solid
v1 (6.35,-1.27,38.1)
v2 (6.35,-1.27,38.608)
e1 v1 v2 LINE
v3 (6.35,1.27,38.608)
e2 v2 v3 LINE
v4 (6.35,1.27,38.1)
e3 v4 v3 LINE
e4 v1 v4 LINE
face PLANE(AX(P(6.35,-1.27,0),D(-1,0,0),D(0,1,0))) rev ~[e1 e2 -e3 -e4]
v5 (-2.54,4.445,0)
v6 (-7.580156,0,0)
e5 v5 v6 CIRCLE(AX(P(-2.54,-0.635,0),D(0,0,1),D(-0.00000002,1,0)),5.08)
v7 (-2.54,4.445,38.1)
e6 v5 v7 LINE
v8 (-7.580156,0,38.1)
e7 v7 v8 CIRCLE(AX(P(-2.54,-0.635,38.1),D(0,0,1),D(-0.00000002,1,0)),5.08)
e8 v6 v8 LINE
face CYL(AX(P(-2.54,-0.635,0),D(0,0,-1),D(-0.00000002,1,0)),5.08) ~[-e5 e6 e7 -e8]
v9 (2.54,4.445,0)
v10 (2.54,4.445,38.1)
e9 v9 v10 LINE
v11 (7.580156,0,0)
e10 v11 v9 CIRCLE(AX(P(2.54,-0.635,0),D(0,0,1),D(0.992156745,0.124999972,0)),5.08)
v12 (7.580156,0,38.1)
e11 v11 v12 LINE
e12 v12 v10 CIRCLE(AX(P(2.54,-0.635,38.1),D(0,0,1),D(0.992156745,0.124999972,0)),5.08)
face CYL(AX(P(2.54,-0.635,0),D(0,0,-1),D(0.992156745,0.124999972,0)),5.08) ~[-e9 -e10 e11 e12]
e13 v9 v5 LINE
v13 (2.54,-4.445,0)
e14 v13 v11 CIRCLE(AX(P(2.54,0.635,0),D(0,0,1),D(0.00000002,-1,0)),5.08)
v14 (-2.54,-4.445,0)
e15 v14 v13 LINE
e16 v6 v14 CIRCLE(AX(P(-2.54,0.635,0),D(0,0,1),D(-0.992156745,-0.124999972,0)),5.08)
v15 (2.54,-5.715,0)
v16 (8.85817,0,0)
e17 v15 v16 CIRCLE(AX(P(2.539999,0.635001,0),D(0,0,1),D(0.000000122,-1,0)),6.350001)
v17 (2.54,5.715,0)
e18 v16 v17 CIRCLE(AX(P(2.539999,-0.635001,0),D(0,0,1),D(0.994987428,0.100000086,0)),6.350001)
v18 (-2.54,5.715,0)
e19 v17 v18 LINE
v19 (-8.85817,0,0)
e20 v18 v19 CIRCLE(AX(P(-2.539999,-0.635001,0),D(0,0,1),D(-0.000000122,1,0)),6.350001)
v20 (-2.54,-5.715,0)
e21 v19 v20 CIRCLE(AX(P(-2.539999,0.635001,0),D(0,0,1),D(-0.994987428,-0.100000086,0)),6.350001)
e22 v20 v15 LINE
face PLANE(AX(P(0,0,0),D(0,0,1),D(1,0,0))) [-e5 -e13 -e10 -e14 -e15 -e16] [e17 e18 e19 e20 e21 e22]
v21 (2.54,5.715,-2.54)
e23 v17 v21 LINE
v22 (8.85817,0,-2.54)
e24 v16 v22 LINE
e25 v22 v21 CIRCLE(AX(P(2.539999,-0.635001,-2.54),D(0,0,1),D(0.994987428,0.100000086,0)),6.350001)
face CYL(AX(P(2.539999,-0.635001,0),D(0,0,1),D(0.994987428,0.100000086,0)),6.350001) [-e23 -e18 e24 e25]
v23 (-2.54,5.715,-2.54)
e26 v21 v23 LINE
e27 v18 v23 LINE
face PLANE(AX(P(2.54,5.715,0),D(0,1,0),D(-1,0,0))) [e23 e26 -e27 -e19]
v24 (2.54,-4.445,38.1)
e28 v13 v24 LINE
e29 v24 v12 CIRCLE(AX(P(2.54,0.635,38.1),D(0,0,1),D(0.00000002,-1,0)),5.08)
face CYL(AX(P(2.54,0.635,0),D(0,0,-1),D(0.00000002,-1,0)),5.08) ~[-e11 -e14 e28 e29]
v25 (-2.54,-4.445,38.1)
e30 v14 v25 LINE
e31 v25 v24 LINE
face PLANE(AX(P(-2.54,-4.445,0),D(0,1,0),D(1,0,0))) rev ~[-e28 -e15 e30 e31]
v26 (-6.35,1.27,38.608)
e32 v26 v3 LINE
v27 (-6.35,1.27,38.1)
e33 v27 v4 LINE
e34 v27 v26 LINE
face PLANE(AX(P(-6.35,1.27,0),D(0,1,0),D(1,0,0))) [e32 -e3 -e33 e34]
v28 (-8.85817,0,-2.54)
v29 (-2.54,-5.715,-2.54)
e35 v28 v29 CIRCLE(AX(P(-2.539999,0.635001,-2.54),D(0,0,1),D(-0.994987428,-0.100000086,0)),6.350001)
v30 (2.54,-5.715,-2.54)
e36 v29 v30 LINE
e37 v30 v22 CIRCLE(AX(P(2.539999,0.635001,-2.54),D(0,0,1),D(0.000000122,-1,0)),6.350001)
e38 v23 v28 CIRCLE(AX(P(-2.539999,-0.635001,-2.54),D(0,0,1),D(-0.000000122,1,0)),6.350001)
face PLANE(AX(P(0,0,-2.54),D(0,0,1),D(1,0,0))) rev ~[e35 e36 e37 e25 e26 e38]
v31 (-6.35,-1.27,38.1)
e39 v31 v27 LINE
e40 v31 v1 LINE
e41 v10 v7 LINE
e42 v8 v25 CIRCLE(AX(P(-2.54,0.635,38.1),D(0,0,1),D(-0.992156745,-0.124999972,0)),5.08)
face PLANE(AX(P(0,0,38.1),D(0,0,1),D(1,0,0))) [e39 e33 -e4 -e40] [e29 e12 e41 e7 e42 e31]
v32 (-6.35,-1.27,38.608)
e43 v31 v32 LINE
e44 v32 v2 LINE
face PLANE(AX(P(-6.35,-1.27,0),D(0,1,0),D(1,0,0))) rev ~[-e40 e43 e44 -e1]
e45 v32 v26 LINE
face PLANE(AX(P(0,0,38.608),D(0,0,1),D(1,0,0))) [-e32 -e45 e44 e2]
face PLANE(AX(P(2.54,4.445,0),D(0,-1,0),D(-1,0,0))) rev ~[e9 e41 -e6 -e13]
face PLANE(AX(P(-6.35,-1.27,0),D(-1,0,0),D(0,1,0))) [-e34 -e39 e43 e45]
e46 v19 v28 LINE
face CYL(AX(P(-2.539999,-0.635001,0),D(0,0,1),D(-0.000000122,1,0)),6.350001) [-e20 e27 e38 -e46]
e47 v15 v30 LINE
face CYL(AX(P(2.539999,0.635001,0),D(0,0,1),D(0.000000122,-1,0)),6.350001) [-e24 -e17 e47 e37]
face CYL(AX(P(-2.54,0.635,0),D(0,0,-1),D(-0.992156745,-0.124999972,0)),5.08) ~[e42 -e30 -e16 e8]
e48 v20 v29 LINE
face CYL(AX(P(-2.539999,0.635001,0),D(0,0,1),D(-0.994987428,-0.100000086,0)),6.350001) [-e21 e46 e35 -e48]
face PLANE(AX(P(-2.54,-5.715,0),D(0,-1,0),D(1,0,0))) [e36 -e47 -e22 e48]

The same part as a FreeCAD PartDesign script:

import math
import FreeCAD as App
import Part
import Sketcher

V = App.Vector
Q = App.Units.Quantity


def add_polygon(sketch, points):
    """Adds a closed chain of lines whose ends are joined by coincident constraints."""
    first, n = sketch.GeometryCount, len(points)
    for a, b in zip(points, points[1:] + points[:1]):
        sketch.addGeometry(Part.LineSegment(App.Vector(*a, 0), App.Vector(*b, 0)), False)
    for i in range(n):
        sketch.addConstraint(Sketcher.Constraint("Coincident", first + i, 2, first + (i + 1) % n, 1))

doc = App.newDocument("Part")
body = doc.addObject("PartDesign::Body", "Body")

# Sketch on XY plane
sketch1 = body.newObject("Sketcher::SketchObject", "Sketch")
sketch1.AttachmentSupport = (doc.getObject("XY_Plane"), [""])
sketch1.MapMode = "FlatFace"
add_polygon(sketch1, [(-6.35, 1.27), (-6.35, -1.27), (6.35, -1.27), (6.35, 1.27)])  # lines 0-3
sketch1.addConstraint(Sketcher.Constraint("Vertical", 0))
sketch1.addConstraint(Sketcher.Constraint("Horizontal", 1))
sketch1.addConstraint(Sketcher.Constraint("Vertical", 2))
sketch1.addConstraint(Sketcher.Constraint("Horizontal", 3))
sketch1.addConstraint(Sketcher.Constraint("Symmetric", 0, 2, 2, 2, -1, 1))
sketch1.addConstraint(Sketcher.Constraint("DistanceX", 1, 1, 1, 2, Q("0.5 in")))
sketch1.addConstraint(Sketcher.Constraint("DistanceY", 0, 2, 0, 1, Q("0.1 in")))
pad1 = body.newObject("PartDesign::Pad", "Pad")
pad1.Profile = sketch1
pad1.Length = Q("1.52 in")
body2 = doc.addObject("PartDesign::Body", "Body001")

# Sketch on XY plane
sketch2 = body2.newObject("Sketcher::SketchObject", "Sketch001")
sketch2.AttachmentSupport = (doc.getObject("XY_Plane001"), [""])
sketch2.MapMode = "FlatFace"
sketch2.addGeometry(Part.LineSegment(V(-2.54, -4.445, 0), V(2.54, -4.445, 0)), False)
sketch2.addGeometry(Part.ArcOfCircle(Part.Circle(V(2.54, 0.635, 0), V(0, 0, 1), 5.08), math.radians(-89.999999), math.radians(-7.180754)), False)
sketch2.addGeometry(Part.ArcOfCircle(Part.Circle(V(2.54, -0.635, 0), V(0, 0, 1), 5.08), math.radians(7.180754), math.radians(89.999999)), False)
sketch2.addGeometry(Part.LineSegment(V(2.54, 4.445, 0), V(-2.54, 4.445, 0)), False)
sketch2.addGeometry(Part.ArcOfCircle(Part.Circle(V(-2.54, -0.635, 0), V(0, 0, 1), 5.08), math.radians(90.000001), math.radians(172.819246)), False)
sketch2.addGeometry(Part.ArcOfCircle(Part.Circle(V(-2.54, 0.635, 0), V(0, 0, 1), 5.08), math.radians(-172.819246), math.radians(-90.000001)), False)
sketch2.addConstraint(Sketcher.Constraint("Tangent", 0, 2, 1, 1))
sketch2.addConstraint(Sketcher.Constraint("Coincident", 1, 2, 2, 1))
sketch2.addConstraint(Sketcher.Constraint("Tangent", 2, 2, 3, 1))
sketch2.addConstraint(Sketcher.Constraint("Tangent", 3, 2, 4, 1))
sketch2.addConstraint(Sketcher.Constraint("Coincident", 4, 2, 5, 1))
sketch2.addConstraint(Sketcher.Constraint("Tangent", 5, 2, 0, 1))
sketch2.addConstraint(Sketcher.Constraint("Horizontal", 0))
sketch2.addConstraint(Sketcher.Constraint("Horizontal", 3))
sketch2.addConstraint(Sketcher.Constraint("Equal", 1, 2))
sketch2.addConstraint(Sketcher.Constraint("Equal", 2, 4))
sketch2.addConstraint(Sketcher.Constraint("Equal", 4, 5))
sketch2.addConstraint(Sketcher.Constraint("Symmetric", 1, 3, 4, 3, -1, 1))
sketch2.addConstraint(Sketcher.Constraint("Symmetric", 1, 2, 4, 2, -2))
sketch2.addConstraint(Sketcher.Constraint("Radius", 1, Q("0.2 in")))
sketch2.addConstraint(Sketcher.Constraint("DistanceX", 0, 1, 0, 2, Q("0.2 in")))
sketch2.addConstraint(Sketcher.Constraint("DistanceY", 2, 3, 1, 3, Q("0.05 in")))
pad2 = body2.newObject("PartDesign::Pad", "Pad001")
pad2.Profile = sketch2
pad2.Length = Q("1.5 in")
doc.recompute()

boolean = body.newObject("PartDesign::Boolean", "Boolean")
boolean.Type = "Fuse"
boolean.addObjects([body2])

# Sketch on XY plane
sketch3 = body.newObject("Sketcher::SketchObject", "Sketch002")
sketch3.AttachmentSupport = (doc.getObject("XY_Plane"), [""])
sketch3.MapMode = "FlatFace"
sketch3.addGeometry(Part.LineSegment(V(-2.54, -5.715, 0), V(2.54, -5.715, 0)), False)
sketch3.addGeometry(Part.ArcOfCircle(Part.Circle(V(2.539999, 0.635001, 0), V(0, 0, 1), 6.350001), math.radians(-89.999993), math.radians(-5.739175)), False)
sketch3.addGeometry(Part.ArcOfCircle(Part.Circle(V(2.539999, -0.635001, 0), V(0, 0, 1), 6.350001), math.radians(5.739175), math.radians(89.999993)), False)
sketch3.addGeometry(Part.LineSegment(V(2.54, 5.715, 0), V(-2.54, 5.715, 0)), False)
sketch3.addGeometry(Part.ArcOfCircle(Part.Circle(V(-2.539999, -0.635001, 0), V(0, 0, 1), 6.350001), math.radians(90.000007), math.radians(174.260825)), False)
sketch3.addGeometry(Part.ArcOfCircle(Part.Circle(V(-2.539999, 0.635001, 0), V(0, 0, 1), 6.350001), math.radians(-174.260825), math.radians(-90.000007)), False)
sketch3.addConstraint(Sketcher.Constraint("Tangent", 0, 2, 1, 1))
sketch3.addConstraint(Sketcher.Constraint("Coincident", 1, 2, 2, 1))
sketch3.addConstraint(Sketcher.Constraint("Tangent", 2, 2, 3, 1))
sketch3.addConstraint(Sketcher.Constraint("Tangent", 3, 2, 4, 1))
sketch3.addConstraint(Sketcher.Constraint("Coincident", 4, 2, 5, 1))
sketch3.addConstraint(Sketcher.Constraint("Tangent", 5, 2, 0, 1))
sketch3.addConstraint(Sketcher.Constraint("Horizontal", 0))
sketch3.addConstraint(Sketcher.Constraint("Horizontal", 3))
sketch3.addConstraint(Sketcher.Constraint("Equal", 1, 2))
sketch3.addConstraint(Sketcher.Constraint("Equal", 2, 4))
sketch3.addConstraint(Sketcher.Constraint("Equal", 4, 5))
sketch3.addConstraint(Sketcher.Constraint("Symmetric", 1, 3, 4, 3, -1, 1))
sketch3.addConstraint(Sketcher.Constraint("Symmetric", 1, 2, 4, 2, -2))
sketch3.addConstraint(Sketcher.Constraint("Radius", 1, Q("0.25 in")))
sketch3.addConstraint(Sketcher.Constraint("DistanceX", 0, 1, 0, 2, Q("0.2 in")))
sketch3.addConstraint(Sketcher.Constraint("DistanceY", 0, 2, 2, 3, Q("0.2 in")))
pad3 = body.newObject("PartDesign::Pad", "Pad002")
pad3.Profile = sketch3
pad3.Length = Q("0.1 in")
pad3.Reversed = True

doc.recompute()
